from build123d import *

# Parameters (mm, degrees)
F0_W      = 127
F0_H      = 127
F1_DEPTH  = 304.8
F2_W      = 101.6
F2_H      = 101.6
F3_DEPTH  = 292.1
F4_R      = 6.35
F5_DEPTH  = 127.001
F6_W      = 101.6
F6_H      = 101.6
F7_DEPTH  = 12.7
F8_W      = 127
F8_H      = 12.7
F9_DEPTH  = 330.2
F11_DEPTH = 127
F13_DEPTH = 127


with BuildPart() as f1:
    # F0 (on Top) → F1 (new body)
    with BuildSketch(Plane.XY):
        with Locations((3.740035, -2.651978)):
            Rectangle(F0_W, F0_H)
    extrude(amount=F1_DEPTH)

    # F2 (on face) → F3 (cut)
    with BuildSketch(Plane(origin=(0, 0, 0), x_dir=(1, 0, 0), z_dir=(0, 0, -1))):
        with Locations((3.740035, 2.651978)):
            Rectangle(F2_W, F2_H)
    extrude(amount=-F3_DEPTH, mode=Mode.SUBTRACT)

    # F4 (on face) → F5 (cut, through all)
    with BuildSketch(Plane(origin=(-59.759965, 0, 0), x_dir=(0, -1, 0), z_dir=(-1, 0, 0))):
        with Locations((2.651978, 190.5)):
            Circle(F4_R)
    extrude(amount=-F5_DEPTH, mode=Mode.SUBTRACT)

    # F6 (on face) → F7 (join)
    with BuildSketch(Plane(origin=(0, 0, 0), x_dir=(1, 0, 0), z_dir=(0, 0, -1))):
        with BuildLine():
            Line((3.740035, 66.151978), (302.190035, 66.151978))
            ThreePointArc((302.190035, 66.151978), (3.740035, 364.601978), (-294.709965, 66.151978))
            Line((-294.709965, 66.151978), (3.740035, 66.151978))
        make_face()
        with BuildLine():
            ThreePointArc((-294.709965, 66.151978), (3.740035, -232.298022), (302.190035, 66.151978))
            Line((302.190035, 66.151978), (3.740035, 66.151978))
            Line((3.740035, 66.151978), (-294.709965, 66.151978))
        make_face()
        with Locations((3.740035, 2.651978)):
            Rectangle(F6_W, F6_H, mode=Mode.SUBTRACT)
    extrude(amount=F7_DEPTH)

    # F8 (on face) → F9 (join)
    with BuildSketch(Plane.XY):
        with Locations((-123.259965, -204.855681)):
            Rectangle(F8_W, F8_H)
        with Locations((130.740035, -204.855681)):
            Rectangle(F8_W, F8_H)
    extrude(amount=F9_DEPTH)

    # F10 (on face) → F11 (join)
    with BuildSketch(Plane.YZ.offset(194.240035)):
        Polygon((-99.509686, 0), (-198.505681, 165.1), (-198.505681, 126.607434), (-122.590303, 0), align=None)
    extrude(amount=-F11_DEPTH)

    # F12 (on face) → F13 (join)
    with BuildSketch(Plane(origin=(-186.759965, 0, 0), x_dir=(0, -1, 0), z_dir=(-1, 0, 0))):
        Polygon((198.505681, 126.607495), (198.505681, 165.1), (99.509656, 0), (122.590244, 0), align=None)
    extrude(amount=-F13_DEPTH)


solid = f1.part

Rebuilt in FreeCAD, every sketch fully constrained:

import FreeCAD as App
import Part
import Sketcher
from FreeCAD import Vector
Q = App.Units.Quantity

doc = App.newDocument("Part")
body = doc.addObject("PartDesign::Body", "Body")

# Sketch on XY plane
sketch1 = body.newObject("Sketcher::SketchObject", "Sketch")
sketch1.AttachmentSupport = (doc.getObject("XY_Plane"), [""])
sketch1.MapMode = "FlatFace"
sketch1.addGeometry(Part.LineSegment(Vector(-60, 61, 0), Vector(-60, -66, 0)), False)
sketch1.addGeometry(Part.LineSegment(Vector(-60, -66, 0), Vector(67, -66, 0)), False)
sketch1.addGeometry(Part.LineSegment(Vector(67, -66, 0), Vector(67, 61, 0)), False)
sketch1.addGeometry(Part.LineSegment(Vector(67, 61, 0), Vector(-60, 61, 0)), False)
sketch1.addConstraint(Sketcher.Constraint("Coincident", 0, 2, 1, 1))
sketch1.addConstraint(Sketcher.Constraint("Coincident", 1, 2, 2, 1))
sketch1.addConstraint(Sketcher.Constraint("Coincident", 2, 2, 3, 1))
sketch1.addConstraint(Sketcher.Constraint("Coincident", 3, 2, 0, 1))
sketch1.addConstraint(Sketcher.Constraint("Vertical", 0))
sketch1.addConstraint(Sketcher.Constraint("Horizontal", 1))
sketch1.addConstraint(Sketcher.Constraint("Vertical", 2))
sketch1.addConstraint(Sketcher.Constraint("Horizontal", 3))
sketch1.addConstraint(Sketcher.Constraint("Equal", 3, 0))
sketch1.addConstraint(Sketcher.Constraint("DistanceX", 1, 1, 1, 2, Q("5 in")))
sketch1.addConstraint(Sketcher.Constraint("DistanceY", 0, 2, -1, 1, 66.151978))
sketch1.addConstraint(Sketcher.Constraint("DistanceX", 0, 2, -1, 1, 59.759965))
pad1 = body.newObject("PartDesign::Pad", "Pad")
pad1.Profile = sketch1
pad1.Length = Q("12 in")

# Sketch on XY plane
sketch2 = body.newObject("Sketcher::SketchObject", "Sketch001")
sketch2.AttachmentSupport = (doc.getObject("XY_Plane"), [""])
sketch2.MapMode = "FlatFace"
sketch2.addGeometry(Part.LineSegment(Vector(-47, -53, 0), Vector(-47, 48, 0)), False)
sketch2.addGeometry(Part.LineSegment(Vector(-47, 48, 0), Vector(55, 48, 0)), False)
sketch2.addGeometry(Part.LineSegment(Vector(55, 48, 0), Vector(55, -53, 0)), False)
sketch2.addGeometry(Part.LineSegment(Vector(55, -53, 0), Vector(-47, -53, 0)), False)
sketch2.addConstraint(Sketcher.Constraint("Coincident", 0, 2, 1, 1))
sketch2.addConstraint(Sketcher.Constraint("Coincident", 1, 2, 2, 1))
sketch2.addConstraint(Sketcher.Constraint("Coincident", 2, 2, 3, 1))
sketch2.addConstraint(Sketcher.Constraint("Coincident", 3, 2, 0, 1))
sketch2.addConstraint(Sketcher.Constraint("Vertical", 0))
sketch2.addConstraint(Sketcher.Constraint("Horizontal", 1))
sketch2.addConstraint(Sketcher.Constraint("Vertical", 2))
sketch2.addConstraint(Sketcher.Constraint("Horizontal", 3))
sketch2.addConstraint(Sketcher.Constraint("Equal", 3, 0))
sketch2.addConstraint(Sketcher.Constraint("DistanceX", 1, 1, 1, 2, Q("4 in")))
sketch2.addConstraint(Sketcher.Constraint("DistanceY", -1, 1, 0, 2, 48.148022))
sketch2.addConstraint(Sketcher.Constraint("DistanceX", 0, 2, -1, 1, 47.059965))
pocket1 = body.newObject("PartDesign::Pocket", "Pocket")
pocket1.Profile = sketch2
pocket1.Length = Q("11.5 in")
pocket1.Reversed = True

# Sketch on YZ plane
sketch3 = body.newObject("Sketcher::SketchObject", "Sketch002")
sketch3.AttachmentSupport = (doc.getObject("YZ_Plane"), [""])
sketch3.MapMode = "FlatFace"
sketch3.AttachmentOffset = App.Placement(Vector(0, 0, -59.759965), App.Rotation())
sketch3.addGeometry(Part.Circle(Vector(-3, 190, 0), Vector(0, 0, 1), 6), False)
sketch3.addConstraint(Sketcher.Constraint("Diameter", 0, Q("0.5 in")))
sketch3.addConstraint(Sketcher.Constraint("DistanceY", -1, 1, 0, 3, Q("7.5 in")))
sketch3.addConstraint(Sketcher.Constraint("DistanceX", 0, 3, -1, 1, 2.651978))
pocket2 = body.newObject("PartDesign::Pocket", "Pocket001")
pocket2.Profile = sketch3
pocket2.Type = "ThroughAll"
pocket2.Reversed = True

# Sketch on XY plane
sketch4 = body.newObject("Sketcher::SketchObject", "Sketch003")
sketch4.AttachmentSupport = (doc.getObject("XY_Plane"), [""])
sketch4.MapMode = "FlatFace"
sketch4.addGeometry(Part.Circle(Vector(4, -66, 0), Vector(0, 0, 1), 298), False)
sketch4.addGeometry(Part.LineSegment(Vector(55, 48, 0), Vector(-47, 48, 0)), False)
sketch4.addGeometry(Part.LineSegment(Vector(-47, 48, 0), Vector(-47, -53, 0)), False)
sketch4.addGeometry(Part.LineSegment(Vector(-47, -53, 0), Vector(55, -53, 0)), False)
sketch4.addGeometry(Part.LineSegment(Vector(55, -53, 0), Vector(55, 48, 0)), False)
sketch4.addConstraint(Sketcher.Constraint("Coincident", 1, 2, 2, 1))
sketch4.addConstraint(Sketcher.Constraint("Coincident", 2, 2, 3, 1))
sketch4.addConstraint(Sketcher.Constraint("Coincident", 3, 2, 4, 1))
sketch4.addConstraint(Sketcher.Constraint("Coincident", 4, 2, 1, 1))
sketch4.addConstraint(Sketcher.Constraint("Horizontal", 1))
sketch4.addConstraint(Sketcher.Constraint("Vertical", 2))
sketch4.addConstraint(Sketcher.Constraint("Horizontal", 3))
sketch4.addConstraint(Sketcher.Constraint("Vertical", 4))
sketch4.addConstraint(Sketcher.Constraint("Equal", 3, 2))
sketch4.addConstraint(Sketcher.Constraint("Diameter", 0, Q("23.5 in")))
sketch4.addConstraint(Sketcher.Constraint("DistanceX", 1, 2, 1, 1, Q("4 in")))
sketch4.addConstraint(Sketcher.Constraint("DistanceX", 1, 2, 0, 3, Q("2 in")))
sketch4.addConstraint(Sketcher.Constraint("DistanceY", 0, 3, 1, 2, Q("4.5 in")))
sketch4.addConstraint(Sketcher.Constraint("DistanceY", 0, 3, -1, 1, 66.151978))
sketch4.addConstraint(Sketcher.Constraint("DistanceX", -1, 1, 0, 3, 3.740035))
pad2 = body.newObject("PartDesign::Pad", "Pad001")
pad2.Profile = sketch4
pad2.Length = Q("0.5 in")
pad2.Reversed = True

# Sketch on XY plane
sketch5 = body.newObject("Sketcher::SketchObject", "Sketch004")
sketch5.AttachmentSupport = (doc.getObject("XY_Plane"), [""])
sketch5.MapMode = "FlatFace"
sketch5.addGeometry(Part.LineSegment(Vector(-187, -199, 0), Vector(-187, -211, 0)), False)
sketch5.addGeometry(Part.LineSegment(Vector(-187, -211, 0), Vector(-60, -211, 0)), False)
sketch5.addGeometry(Part.LineSegment(Vector(-60, -211, 0), Vector(-60, -199, 0)), False)
sketch5.addGeometry(Part.LineSegment(Vector(-60, -199, 0), Vector(-187, -199, 0)), False)
sketch5.addGeometry(Part.LineSegment(Vector(67, -199, 0), Vector(67, -211, 0)), False)
sketch5.addGeometry(Part.LineSegment(Vector(67, -211, 0), Vector(194, -211, 0)), False)
sketch5.addGeometry(Part.LineSegment(Vector(194, -211, 0), Vector(194, -199, 0)), False)
sketch5.addGeometry(Part.LineSegment(Vector(194, -199, 0), Vector(67, -199, 0)), False)
sketch5.addConstraint(Sketcher.Constraint("Coincident", 0, 2, 1, 1))
sketch5.addConstraint(Sketcher.Constraint("Coincident", 1, 2, 2, 1))
sketch5.addConstraint(Sketcher.Constraint("Coincident", 2, 2, 3, 1))
sketch5.addConstraint(Sketcher.Constraint("Coincident", 3, 2, 0, 1))
sketch5.addConstraint(Sketcher.Constraint("Coincident", 4, 2, 5, 1))
sketch5.addConstraint(Sketcher.Constraint("Coincident", 5, 2, 6, 1))
sketch5.addConstraint(Sketcher.Constraint("Coincident", 6, 2, 7, 1))
sketch5.addConstraint(Sketcher.Constraint("Coincident", 7, 2, 4, 1))
sketch5.addConstraint(Sketcher.Constraint("Vertical", 0))
sketch5.addConstraint(Sketcher.Constraint("Horizontal", 1))
sketch5.addConstraint(Sketcher.Constraint("Vertical", 2))
sketch5.addConstraint(Sketcher.Constraint("Horizontal", 3))
sketch5.addConstraint(Sketcher.Constraint("Vertical", 4))
sketch5.addConstraint(Sketcher.Constraint("Horizontal", 5))
sketch5.addConstraint(Sketcher.Constraint("Vertical", 6))
sketch5.addConstraint(Sketcher.Constraint("Horizontal", 7))
sketch5.addConstraint(Sketcher.Constraint("Horizontal", 1, 2, 4, 2))
sketch5.addConstraint(Sketcher.Constraint("Horizontal", 3, 2, 6, 2))
sketch5.addConstraint(Sketcher.Constraint("Equal", 3, 5))
sketch5.addConstraint(Sketcher.Constraint("DistanceX", 1, 1, 1, 2, Q("5 in")))
sketch5.addConstraint(Sketcher.Constraint("DistanceY", 0, 2, 0, 1, Q("0.5 in")))
sketch5.addConstraint(Sketcher.Constraint("DistanceX", 1, 2, 4, 2, Q("5 in")))
sketch5.addConstraint(Sketcher.Constraint("DistanceY", 0, 2, -1, 1, 211.205681))
sketch5.addConstraint(Sketcher.Constraint("DistanceX", 0, 2, -1, 1, 186.759965))
pad3 = body.newObject("PartDesign::Pad", "Pad002")
pad3.Profile = sketch5
pad3.Length = Q("13 in")

# Sketch on YZ plane
sketch6 = body.newObject("Sketcher::SketchObject", "Sketch005")
sketch6.AttachmentSupport = (doc.getObject("YZ_Plane"), [""])
sketch6.MapMode = "FlatFace"
sketch6.AttachmentOffset = App.Placement(Vector(0, 0, 194.240035), App.Rotation())
sketch6.addGeometry(Part.LineSegment(Vector(-100, 0, 0), Vector(-199, 165, 0)), False)
sketch6.addGeometry(Part.LineSegment(Vector(-199, 165, 0), Vector(-199, 127, 0)), False)
sketch6.addGeometry(Part.LineSegment(Vector(-199, 127, 0), Vector(-123, 0, 0)), False)
sketch6.addGeometry(Part.LineSegment(Vector(-123, 0, 0), Vector(-100, 0, 0)), False)
sketch6.addConstraint(Sketcher.Constraint("Coincident", 0, 2, 1, 1))
sketch6.addConstraint(Sketcher.Constraint("Coincident", 1, 2, 2, 1))
sketch6.addConstraint(Sketcher.Constraint("Coincident", 2, 2, 3, 1))
sketch6.addConstraint(Sketcher.Constraint("Coincident", 3, 2, 0, 1))
sketch6.addConstraint(Sketcher.Constraint("Vertical", 1))
sketch6.addConstraint(Sketcher.Constraint("Horizontal", 3))
sketch6.addConstraint(Sketcher.Constraint("PointOnObject", 2, 2, -1))
sketch6.addConstraint(Sketcher.Constraint("Parallel", 0, 2))
sketch6.addConstraint(Sketcher.Constraint("DistanceY", -1, 1, 0, 2, Q("6.5 in")))
sketch6.addConstraint(Sketcher.Constraint("Distance", 0, 192.505109))
sketch6.addConstraint(Sketcher.Constraint("DistanceX", 3, 1, 3, 2, 23.080617))
sketch6.addConstraint(Sketcher.Constraint("DistanceX", 0, 2, -1, 1, 198.505681))
pad4 = body.newObject("PartDesign::Pad", "Pad003")
pad4.Profile = sketch6
pad4.Length = Q("5 in")
pad4.Reversed = True

# Sketch on YZ plane
sketch7 = body.newObject("Sketcher::SketchObject", "Sketch006")
sketch7.AttachmentSupport = (doc.getObject("YZ_Plane"), [""])
sketch7.MapMode = "FlatFace"
sketch7.AttachmentOffset = App.Placement(Vector(0, 0, -186.759965), App.Rotation())
sketch7.addGeometry(Part.LineSegment(Vector(-199, 127, 0), Vector(-199, 165, 0)), False)
sketch7.addGeometry(Part.LineSegment(Vector(-199, 165, 0), Vector(-100, 0, 0)), False)
sketch7.addGeometry(Part.LineSegment(Vector(-100, 0, 0), Vector(-123, 0, 0)), False)
sketch7.addGeometry(Part.LineSegment(Vector(-123, 0, 0), Vector(-199, 127, 0)), False)
sketch7.addConstraint(Sketcher.Constraint("Coincident", 0, 2, 1, 1))
sketch7.addConstraint(Sketcher.Constraint("Coincident", 1, 2, 2, 1))
sketch7.addConstraint(Sketcher.Constraint("Coincident", 2, 2, 3, 1))
sketch7.addConstraint(Sketcher.Constraint("Coincident", 3, 2, 0, 1))
sketch7.addConstraint(Sketcher.Constraint("Vertical", 0))
sketch7.addConstraint(Sketcher.Constraint("Horizontal", 2))
sketch7.addConstraint(Sketcher.Constraint("PointOnObject", 1, 2, -1))
sketch7.addConstraint(Sketcher.Constraint("Parallel", 1, 3))
sketch7.addConstraint(Sketcher.Constraint("DistanceY", -1, 1, 0, 2, Q("6.5 in")))
sketch7.addConstraint(Sketcher.Constraint("DistanceX", 2, 2, 2, 1, 23.080588))
sketch7.addConstraint(Sketcher.Constraint("DistanceY", 0, 1, 0, 2, 38.492505))
sketch7.addConstraint(Sketcher.Constraint("DistanceX", 0, 2, -1, 1, 198.505681))
pad5 = body.newObject("PartDesign::Pad", "Pad004")
pad5.Profile = sketch7
pad5.Length = Q("5 in")

doc.recompute()
